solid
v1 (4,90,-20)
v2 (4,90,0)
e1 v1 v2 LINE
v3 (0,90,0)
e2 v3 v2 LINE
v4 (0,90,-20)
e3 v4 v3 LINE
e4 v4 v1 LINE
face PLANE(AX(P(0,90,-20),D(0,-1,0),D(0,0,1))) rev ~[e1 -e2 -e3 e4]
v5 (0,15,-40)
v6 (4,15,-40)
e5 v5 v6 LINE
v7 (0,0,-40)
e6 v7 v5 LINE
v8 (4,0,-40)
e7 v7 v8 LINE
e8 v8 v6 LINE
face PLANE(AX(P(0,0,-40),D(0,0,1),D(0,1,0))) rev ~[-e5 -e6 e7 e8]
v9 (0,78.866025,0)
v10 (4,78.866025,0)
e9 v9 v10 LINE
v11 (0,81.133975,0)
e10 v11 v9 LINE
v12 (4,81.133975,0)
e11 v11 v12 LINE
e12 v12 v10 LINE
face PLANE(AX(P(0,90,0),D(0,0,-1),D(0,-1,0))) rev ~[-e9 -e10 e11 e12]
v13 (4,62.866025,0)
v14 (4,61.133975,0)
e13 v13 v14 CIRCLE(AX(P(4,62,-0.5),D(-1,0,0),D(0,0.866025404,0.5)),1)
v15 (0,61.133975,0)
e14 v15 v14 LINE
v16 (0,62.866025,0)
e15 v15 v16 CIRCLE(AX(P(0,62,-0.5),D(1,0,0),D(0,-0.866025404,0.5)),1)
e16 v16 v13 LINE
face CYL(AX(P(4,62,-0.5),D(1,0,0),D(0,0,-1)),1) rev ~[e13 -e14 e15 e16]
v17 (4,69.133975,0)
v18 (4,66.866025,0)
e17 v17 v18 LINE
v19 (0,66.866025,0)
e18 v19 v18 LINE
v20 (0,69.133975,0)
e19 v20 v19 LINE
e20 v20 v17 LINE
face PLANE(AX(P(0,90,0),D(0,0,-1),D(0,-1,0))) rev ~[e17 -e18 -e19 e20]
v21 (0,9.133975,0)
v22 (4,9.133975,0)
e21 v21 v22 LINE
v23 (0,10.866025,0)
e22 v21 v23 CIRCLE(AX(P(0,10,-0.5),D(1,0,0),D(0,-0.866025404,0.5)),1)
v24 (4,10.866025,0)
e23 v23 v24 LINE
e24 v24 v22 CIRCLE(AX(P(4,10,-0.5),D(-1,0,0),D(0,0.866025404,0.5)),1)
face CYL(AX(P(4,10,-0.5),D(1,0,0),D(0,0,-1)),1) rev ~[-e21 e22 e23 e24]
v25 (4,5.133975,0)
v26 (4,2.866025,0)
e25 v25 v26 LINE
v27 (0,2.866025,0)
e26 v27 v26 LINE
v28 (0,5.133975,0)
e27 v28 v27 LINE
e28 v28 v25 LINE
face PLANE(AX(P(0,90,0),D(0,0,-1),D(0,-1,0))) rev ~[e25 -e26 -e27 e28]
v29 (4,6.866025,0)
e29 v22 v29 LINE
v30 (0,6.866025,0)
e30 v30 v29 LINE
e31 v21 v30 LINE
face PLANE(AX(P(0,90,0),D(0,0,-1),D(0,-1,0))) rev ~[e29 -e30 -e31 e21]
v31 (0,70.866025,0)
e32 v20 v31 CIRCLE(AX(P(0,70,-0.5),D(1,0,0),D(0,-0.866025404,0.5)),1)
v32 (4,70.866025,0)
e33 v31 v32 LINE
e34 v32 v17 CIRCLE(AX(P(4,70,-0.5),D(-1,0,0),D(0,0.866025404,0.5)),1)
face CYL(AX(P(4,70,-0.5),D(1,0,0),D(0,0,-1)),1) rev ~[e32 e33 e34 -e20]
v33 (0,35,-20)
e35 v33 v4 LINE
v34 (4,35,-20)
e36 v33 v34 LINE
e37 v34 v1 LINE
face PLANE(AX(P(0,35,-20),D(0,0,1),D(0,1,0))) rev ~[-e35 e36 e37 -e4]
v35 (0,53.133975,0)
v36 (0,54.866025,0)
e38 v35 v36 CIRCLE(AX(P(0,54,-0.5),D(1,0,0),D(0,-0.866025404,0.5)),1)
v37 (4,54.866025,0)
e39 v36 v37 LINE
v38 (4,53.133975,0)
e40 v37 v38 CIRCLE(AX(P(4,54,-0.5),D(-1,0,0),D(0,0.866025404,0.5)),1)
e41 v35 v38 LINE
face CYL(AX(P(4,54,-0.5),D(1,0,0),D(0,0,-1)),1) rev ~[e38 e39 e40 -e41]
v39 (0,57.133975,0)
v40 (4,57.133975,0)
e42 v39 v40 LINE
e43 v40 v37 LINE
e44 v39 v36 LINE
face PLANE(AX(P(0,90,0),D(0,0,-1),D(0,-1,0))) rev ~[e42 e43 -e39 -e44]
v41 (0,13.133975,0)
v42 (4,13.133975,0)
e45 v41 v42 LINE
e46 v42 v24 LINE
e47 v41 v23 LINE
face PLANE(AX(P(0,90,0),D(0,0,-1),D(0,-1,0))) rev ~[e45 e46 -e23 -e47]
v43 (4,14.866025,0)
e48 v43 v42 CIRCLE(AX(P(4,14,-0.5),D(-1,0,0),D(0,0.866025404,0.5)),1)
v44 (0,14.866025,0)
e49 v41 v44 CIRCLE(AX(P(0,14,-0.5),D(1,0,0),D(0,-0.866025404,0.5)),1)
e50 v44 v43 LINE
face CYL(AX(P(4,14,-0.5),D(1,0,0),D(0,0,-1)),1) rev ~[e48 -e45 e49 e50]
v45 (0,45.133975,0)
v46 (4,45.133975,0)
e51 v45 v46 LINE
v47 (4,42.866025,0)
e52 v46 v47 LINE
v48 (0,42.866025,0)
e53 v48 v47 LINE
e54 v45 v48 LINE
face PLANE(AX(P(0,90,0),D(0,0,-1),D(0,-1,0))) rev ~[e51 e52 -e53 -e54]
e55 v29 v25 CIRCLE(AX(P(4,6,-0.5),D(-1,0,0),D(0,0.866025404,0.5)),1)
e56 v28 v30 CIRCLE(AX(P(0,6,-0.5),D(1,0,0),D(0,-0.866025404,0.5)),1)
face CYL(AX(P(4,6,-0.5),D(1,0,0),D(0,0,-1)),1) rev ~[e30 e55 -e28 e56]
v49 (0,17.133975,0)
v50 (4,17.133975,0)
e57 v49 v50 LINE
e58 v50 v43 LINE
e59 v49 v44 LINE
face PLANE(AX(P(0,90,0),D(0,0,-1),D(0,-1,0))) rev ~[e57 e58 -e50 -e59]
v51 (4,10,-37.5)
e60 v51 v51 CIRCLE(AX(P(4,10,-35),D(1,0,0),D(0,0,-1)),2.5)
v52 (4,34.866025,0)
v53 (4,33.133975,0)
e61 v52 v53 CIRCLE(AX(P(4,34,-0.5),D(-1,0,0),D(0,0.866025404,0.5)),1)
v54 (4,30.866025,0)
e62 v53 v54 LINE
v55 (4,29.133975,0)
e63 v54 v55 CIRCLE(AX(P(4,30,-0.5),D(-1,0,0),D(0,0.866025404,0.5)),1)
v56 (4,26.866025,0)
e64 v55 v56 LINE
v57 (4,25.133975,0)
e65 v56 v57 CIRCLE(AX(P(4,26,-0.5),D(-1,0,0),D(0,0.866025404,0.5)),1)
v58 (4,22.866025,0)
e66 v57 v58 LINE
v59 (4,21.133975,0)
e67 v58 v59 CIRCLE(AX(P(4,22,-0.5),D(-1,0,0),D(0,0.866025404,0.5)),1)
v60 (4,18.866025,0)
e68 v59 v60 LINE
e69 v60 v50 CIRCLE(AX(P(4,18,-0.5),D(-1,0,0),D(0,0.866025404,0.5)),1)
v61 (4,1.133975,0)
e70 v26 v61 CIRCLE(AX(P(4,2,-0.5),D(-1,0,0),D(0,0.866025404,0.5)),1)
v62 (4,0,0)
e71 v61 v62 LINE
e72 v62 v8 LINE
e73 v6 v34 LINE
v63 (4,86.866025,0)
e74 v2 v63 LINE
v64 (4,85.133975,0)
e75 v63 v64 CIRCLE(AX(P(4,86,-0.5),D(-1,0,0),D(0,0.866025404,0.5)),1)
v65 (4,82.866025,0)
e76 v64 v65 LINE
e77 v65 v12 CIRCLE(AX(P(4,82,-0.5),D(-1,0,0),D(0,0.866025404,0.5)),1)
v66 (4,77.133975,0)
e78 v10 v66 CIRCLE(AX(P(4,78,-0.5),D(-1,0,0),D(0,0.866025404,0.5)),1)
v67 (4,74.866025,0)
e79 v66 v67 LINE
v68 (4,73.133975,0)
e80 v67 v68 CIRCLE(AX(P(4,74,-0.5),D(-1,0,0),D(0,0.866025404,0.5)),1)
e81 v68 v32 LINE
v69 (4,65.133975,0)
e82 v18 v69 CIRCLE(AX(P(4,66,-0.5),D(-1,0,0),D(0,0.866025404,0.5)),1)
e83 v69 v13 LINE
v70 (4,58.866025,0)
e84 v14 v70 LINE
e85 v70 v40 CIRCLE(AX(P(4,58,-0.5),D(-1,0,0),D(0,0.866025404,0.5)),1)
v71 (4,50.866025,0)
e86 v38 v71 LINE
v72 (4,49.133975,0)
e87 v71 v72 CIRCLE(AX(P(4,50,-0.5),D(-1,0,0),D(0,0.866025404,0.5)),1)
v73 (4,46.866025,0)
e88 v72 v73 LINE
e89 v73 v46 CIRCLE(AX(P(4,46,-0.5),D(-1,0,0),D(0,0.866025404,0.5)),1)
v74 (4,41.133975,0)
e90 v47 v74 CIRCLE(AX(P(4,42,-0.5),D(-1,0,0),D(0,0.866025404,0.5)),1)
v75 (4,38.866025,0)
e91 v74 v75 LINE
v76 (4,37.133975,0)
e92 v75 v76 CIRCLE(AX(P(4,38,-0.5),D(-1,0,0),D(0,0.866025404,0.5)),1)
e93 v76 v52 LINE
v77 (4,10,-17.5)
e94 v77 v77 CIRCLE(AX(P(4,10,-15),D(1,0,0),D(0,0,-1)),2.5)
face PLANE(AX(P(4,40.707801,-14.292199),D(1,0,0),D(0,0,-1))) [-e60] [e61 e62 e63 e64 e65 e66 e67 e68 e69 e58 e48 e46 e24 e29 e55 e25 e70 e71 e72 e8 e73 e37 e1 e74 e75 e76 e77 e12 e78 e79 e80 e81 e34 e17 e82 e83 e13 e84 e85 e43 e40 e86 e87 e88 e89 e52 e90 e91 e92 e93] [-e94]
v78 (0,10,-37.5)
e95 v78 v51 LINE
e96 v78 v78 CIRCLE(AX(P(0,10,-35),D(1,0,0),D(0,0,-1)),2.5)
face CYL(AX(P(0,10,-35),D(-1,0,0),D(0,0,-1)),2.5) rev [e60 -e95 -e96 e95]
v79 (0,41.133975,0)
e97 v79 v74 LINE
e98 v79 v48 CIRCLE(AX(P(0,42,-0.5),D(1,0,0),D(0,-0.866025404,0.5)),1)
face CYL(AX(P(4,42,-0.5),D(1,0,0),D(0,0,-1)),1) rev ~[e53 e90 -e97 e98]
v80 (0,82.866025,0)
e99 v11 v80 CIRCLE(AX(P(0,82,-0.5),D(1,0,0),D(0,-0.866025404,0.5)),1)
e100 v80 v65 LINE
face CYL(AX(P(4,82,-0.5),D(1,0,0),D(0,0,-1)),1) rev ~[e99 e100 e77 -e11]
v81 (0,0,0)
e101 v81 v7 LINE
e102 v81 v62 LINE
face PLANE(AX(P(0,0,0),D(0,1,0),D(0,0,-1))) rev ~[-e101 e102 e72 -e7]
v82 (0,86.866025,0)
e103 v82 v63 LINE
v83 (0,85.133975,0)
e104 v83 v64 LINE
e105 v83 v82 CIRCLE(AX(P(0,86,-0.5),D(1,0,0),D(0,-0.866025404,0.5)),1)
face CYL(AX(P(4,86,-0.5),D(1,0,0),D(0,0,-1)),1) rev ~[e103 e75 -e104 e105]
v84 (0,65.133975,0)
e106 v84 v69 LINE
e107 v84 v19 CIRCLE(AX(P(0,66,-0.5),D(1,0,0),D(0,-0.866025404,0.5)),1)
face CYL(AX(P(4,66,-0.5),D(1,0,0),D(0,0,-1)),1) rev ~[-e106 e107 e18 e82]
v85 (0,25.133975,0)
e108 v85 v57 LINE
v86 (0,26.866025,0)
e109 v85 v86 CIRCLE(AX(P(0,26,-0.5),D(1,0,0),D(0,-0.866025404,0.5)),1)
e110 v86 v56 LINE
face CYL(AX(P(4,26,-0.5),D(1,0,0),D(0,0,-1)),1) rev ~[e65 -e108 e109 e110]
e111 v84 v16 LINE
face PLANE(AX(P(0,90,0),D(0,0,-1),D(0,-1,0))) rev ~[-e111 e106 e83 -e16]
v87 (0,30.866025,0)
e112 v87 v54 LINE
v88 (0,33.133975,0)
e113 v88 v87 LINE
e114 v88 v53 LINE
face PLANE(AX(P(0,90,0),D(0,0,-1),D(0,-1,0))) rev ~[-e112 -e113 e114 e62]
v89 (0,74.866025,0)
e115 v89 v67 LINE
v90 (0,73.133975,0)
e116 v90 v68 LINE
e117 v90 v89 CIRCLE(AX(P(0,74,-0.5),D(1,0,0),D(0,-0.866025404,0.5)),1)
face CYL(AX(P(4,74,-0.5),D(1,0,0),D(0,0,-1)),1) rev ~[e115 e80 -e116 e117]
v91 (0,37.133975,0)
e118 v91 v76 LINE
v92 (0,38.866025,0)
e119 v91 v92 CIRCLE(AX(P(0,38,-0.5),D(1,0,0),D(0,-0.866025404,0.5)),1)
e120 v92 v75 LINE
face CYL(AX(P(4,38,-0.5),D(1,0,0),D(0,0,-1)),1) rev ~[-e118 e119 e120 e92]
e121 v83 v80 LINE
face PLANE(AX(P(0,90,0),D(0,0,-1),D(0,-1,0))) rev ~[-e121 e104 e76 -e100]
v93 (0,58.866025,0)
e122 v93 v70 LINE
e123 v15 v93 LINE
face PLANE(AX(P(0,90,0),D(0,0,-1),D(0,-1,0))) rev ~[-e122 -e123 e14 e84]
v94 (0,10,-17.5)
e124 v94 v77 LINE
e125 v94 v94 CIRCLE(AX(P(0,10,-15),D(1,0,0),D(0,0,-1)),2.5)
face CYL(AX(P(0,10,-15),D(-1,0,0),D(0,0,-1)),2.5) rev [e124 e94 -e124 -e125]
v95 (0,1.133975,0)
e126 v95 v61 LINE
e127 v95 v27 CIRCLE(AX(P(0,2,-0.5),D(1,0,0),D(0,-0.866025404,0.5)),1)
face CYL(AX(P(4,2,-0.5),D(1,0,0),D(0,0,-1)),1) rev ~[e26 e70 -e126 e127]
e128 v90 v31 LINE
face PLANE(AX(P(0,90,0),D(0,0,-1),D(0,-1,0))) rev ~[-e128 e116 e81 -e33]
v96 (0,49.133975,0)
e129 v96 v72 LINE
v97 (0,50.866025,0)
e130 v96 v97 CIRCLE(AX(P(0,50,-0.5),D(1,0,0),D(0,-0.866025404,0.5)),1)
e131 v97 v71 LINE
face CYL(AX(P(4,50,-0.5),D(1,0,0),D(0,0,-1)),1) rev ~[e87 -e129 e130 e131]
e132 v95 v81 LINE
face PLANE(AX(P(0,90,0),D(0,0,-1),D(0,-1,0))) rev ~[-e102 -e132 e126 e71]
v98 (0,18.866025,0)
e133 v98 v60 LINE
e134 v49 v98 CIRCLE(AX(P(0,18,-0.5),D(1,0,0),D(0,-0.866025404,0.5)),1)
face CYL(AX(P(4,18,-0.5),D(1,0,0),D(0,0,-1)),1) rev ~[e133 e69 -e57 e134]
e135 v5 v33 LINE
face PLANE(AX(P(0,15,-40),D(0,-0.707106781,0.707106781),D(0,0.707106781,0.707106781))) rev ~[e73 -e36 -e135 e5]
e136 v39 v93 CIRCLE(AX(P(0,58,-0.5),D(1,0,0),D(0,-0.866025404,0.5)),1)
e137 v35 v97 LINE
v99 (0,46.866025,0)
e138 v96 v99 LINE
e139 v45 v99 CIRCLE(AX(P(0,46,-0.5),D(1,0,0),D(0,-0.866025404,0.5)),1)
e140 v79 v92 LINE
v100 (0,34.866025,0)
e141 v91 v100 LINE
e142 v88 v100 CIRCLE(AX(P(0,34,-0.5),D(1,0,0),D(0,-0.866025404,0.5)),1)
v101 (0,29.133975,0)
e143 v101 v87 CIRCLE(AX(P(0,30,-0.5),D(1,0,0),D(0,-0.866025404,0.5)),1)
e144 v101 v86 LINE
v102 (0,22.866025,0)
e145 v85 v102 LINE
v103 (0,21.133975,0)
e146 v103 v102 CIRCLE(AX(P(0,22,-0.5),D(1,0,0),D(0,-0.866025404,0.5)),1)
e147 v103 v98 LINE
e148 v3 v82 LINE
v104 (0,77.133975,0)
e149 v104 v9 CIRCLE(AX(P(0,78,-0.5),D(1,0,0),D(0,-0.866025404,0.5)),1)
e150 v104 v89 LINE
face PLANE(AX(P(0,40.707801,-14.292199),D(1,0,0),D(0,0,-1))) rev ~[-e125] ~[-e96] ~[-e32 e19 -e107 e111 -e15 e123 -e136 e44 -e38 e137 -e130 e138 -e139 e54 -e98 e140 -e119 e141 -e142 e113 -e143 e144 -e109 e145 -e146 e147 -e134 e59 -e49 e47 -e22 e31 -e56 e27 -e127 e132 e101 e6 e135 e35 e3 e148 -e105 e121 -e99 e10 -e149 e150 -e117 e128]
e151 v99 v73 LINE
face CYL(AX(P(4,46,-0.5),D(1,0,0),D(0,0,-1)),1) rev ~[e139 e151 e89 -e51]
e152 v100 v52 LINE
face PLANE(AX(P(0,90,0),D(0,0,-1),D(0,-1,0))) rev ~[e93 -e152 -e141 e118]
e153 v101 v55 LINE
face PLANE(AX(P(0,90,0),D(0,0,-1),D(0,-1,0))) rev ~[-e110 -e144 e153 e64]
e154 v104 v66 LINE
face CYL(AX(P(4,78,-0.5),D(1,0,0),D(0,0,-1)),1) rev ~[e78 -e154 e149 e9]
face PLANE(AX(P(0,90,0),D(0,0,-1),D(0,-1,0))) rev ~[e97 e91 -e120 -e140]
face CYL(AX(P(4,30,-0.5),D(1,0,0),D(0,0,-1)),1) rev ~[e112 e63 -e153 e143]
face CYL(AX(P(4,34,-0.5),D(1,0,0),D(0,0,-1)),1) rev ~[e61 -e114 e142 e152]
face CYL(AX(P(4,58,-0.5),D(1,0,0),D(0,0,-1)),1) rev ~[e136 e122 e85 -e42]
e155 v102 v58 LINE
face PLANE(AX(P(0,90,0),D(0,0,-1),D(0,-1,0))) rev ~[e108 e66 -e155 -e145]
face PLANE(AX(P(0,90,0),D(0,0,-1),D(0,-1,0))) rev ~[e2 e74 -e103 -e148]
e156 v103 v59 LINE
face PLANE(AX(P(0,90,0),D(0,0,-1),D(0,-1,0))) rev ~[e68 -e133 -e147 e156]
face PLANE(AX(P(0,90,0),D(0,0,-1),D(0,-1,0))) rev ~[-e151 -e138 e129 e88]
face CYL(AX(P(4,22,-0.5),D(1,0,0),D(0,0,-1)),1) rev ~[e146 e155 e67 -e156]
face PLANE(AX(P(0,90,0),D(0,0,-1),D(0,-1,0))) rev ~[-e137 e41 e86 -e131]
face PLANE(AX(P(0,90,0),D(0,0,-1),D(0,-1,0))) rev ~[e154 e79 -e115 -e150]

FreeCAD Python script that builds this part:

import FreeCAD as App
import Part
import Sketcher
from FreeCAD import Vector
Q = App.Units.Quantity

doc = App.newDocument("Part")
body = doc.addObject("PartDesign::Body", "Body")

sketch1 = body.newObject("Sketcher::SketchObject", "Sketch")
sketch1.AttachmentSupport = (doc.getObject("YZ_Plane"), [""])
sketch1.MapMode = "FlatFace"
sketch1.addGeometry(Part.LineSegment(Vector(15, -40, 0), Vector(35, -20, 0)), False)
sketch1.addGeometry(Part.LineSegment(Vector(35, -20, 0), Vector(90, -20, 0)), False)
sketch1.addGeometry(Part.LineSegment(Vector(90, -20, 0), Vector(90, 0, 0)), False)
sketch1.addGeometry(Part.LineSegment(Vector(90, 0, 0), Vector(0, 0, 0)), False)
sketch1.addGeometry(Part.LineSegment(Vector(0, 0, 0), Vector(0, -40, 0)), False)
sketch1.addGeometry(Part.LineSegment(Vector(0, -40, 0), Vector(15, -40, 0)), False)
sketch1.addGeometry(Part.Circle(Vector(10, -15, 0), Vector(0, 0, 1), 2.5), False)
sketch1.addGeometry(Part.Circle(Vector(10, -35, 0), Vector(0, 0, 1), 2.5), False)
sketch1.addConstraint(Sketcher.Constraint("Coincident", 0, 2, 1, 1))
sketch1.addConstraint(Sketcher.Constraint("Coincident", 1, 2, 2, 1))
sketch1.addConstraint(Sketcher.Constraint("Coincident", 2, 2, 3, 1))
sketch1.addConstraint(Sketcher.Constraint("Coincident", 3, 2, 4, 1))
sketch1.addConstraint(Sketcher.Constraint("Coincident", 4, 2, 5, 1))
sketch1.addConstraint(Sketcher.Constraint("Coincident", 5, 2, 0, 1))
sketch1.addConstraint(Sketcher.Constraint("Horizontal", 1))
sketch1.addConstraint(Sketcher.Constraint("Vertical", 2))
sketch1.addConstraint(Sketcher.Constraint("Horizontal", 3))
sketch1.addConstraint(Sketcher.Constraint("Vertical", 4))
sketch1.addConstraint(Sketcher.Constraint("Horizontal", 5))
sketch1.addConstraint(Sketcher.Constraint("Coincident", 3, 2, -1, 1))
sketch1.addConstraint(Sketcher.Constraint("Equal", 6, 7))
sketch1.addConstraint(Sketcher.Constraint("Vertical", 6, 3, 7, 3))
sketch1.addConstraint(Sketcher.Constraint("Diameter", 6, Q("5 mm")))
sketch1.addConstraint(Sketcher.Constraint("DistanceX", 1, 1, 1, 2, Q("55 mm")))
sketch1.addConstraint(Sketcher.Constraint("DistanceX", 3, 2, 3, 1, Q("90 mm")))
sketch1.addConstraint(Sketcher.Constraint("DistanceX", 5, 1, 5, 2, Q("15 mm")))
sketch1.addConstraint(Sketcher.Constraint("DistanceY", 2, 1, 2, 2, Q("20 mm")))
sketch1.addConstraint(Sketcher.Constraint("DistanceY", 4, 2, 4, 1, Q("40 mm")))
sketch1.addConstraint(Sketcher.Constraint("DistanceX", -1, 1, 6, 3, Q("10 mm")))
sketch1.addConstraint(Sketcher.Constraint("DistanceY", 6, 3, -1, 1, Q("15 mm")))
sketch1.addConstraint(Sketcher.Constraint("DistanceY", 7, 3, -1, 1, Q("35 mm")))
pad1 = body.newObject("PartDesign::Pad", "Pad")
pad1.Profile = sketch1
pad1.Length = 4

sketch2 = body.newObject("Sketcher::SketchObject", "Sketch001")
sketch2.AttachmentSupport = (doc.getObject("YZ_Plane"), [""])
sketch2.MapMode = "FlatFace"
sketch2.AttachmentOffset = App.Placement(Vector(0, 0, 4), App.Rotation())
sketch2.addGeometry(Part.Circle(Vector(2, -0.5, 0), Vector(0, 0, 1), 1), False)
sketch2.addGeometry(Part.Circle(Vector(6, -0.5, 0), Vector(0, 0, 1), 1), False)
sketch2.addGeometry(Part.Circle(Vector(10, -0.5, 0), Vector(0, 0, 1), 1), False)
sketch2.addGeometry(Part.Circle(Vector(14, -0.5, 0), Vector(0, 0, 1), 1), False)
sketch2.addGeometry(Part.Circle(Vector(18, -0.5, 0), Vector(0, 0, 1), 1), False)
sketch2.addGeometry(Part.Circle(Vector(22, -0.5, 0), Vector(0, 0, 1), 1), False)
sketch2.addGeometry(Part.Circle(Vector(26, -0.5, 0), Vector(0, 0, 1), 1), False)
sketch2.addGeometry(Part.Circle(Vector(30, -0.5, 0), Vector(0, 0, 1), 1), False)
sketch2.addGeometry(Part.Circle(Vector(34, -0.5, 0), Vector(0, 0, 1), 1), False)
sketch2.addGeometry(Part.Circle(Vector(38, -0.5, 0), Vector(0, 0, 1), 1), False)
sketch2.addGeometry(Part.Circle(Vector(42, -0.5, 0), Vector(0, 0, 1), 1), False)
sketch2.addGeometry(Part.Circle(Vector(46, -0.5, 0), Vector(0, 0, 1), 1), False)
sketch2.addGeometry(Part.Circle(Vector(50, -0.5, 0), Vector(0, 0, 1), 1), False)
sketch2.addGeometry(Part.Circle(Vector(54, -0.5, 0), Vector(0, 0, 1), 1), False)
sketch2.addGeometry(Part.Circle(Vector(58, -0.5, 0), Vector(0, 0, 1), 1), False)
sketch2.addGeometry(Part.Circle(Vector(62, -0.5, 0), Vector(0, 0, 1), 1), False)
sketch2.addGeometry(Part.Circle(Vector(66, -0.5, 0), Vector(0, 0, 1), 1), False)
sketch2.addGeometry(Part.Circle(Vector(70, -0.5, 0), Vector(0, 0, 1), 1), False)
sketch2.addGeometry(Part.Circle(Vector(74, -0.5, 0), Vector(0, 0, 1), 1), False)
sketch2.addGeometry(Part.Circle(Vector(78, -0.5, 0), Vector(0, 0, 1), 1), False)
sketch2.addGeometry(Part.Circle(Vector(82, -0.5, 0), Vector(0, 0, 1), 1), False)
sketch2.addGeometry(Part.Circle(Vector(86, -0.5, 0), Vector(0, 0, 1), 1), False)
sketch2.addConstraint(Sketcher.Constraint("Equal", 0, 1))
sketch2.addConstraint(Sketcher.Constraint("Equal", 1, 2))
sketch2.addConstraint(Sketcher.Constraint("Equal", 2, 3))
sketch2.addConstraint(Sketcher.Constraint("Equal", 3, 4))
sketch2.addConstraint(Sketcher.Constraint("Equal", 4, 5))
sketch2.addConstraint(Sketcher.Constraint("Equal", 5, 6))
sketch2.addConstraint(Sketcher.Constraint("Equal", 6, 7))
sketch2.addConstraint(Sketcher.Constraint("Equal", 7, 8))
sketch2.addConstraint(Sketcher.Constraint("Equal", 8, 9))
sketch2.addConstraint(Sketcher.Constraint("Equal", 9, 10))
sketch2.addConstraint(Sketcher.Constraint("Equal", 10, 11))
sketch2.addConstraint(Sketcher.Constraint("Equal", 11, 12))
sketch2.addConstraint(Sketcher.Constraint("Equal", 12, 13))
sketch2.addConstraint(Sketcher.Constraint("Equal", 13, 14))
sketch2.addConstraint(Sketcher.Constraint("Equal", 14, 15))
sketch2.addConstraint(Sketcher.Constraint("Equal", 15, 16))
sketch2.addConstraint(Sketcher.Constraint("Equal", 16, 17))
sketch2.addConstraint(Sketcher.Constraint("Equal", 17, 18))
sketch2.addConstraint(Sketcher.Constraint("Equal", 18, 19))
sketch2.addConstraint(Sketcher.Constraint("Equal", 19, 20))
sketch2.addConstraint(Sketcher.Constraint("Equal", 20, 21))
sketch2.addConstraint(Sketcher.Constraint("Horizontal", 0, 3, 1, 3))
sketch2.addConstraint(Sketcher.Constraint("Horizontal", 1, 3, 2, 3))
sketch2.addConstraint(Sketcher.Constraint("Horizontal", 2, 3, 3, 3))
sketch2.addConstraint(Sketcher.Constraint("Horizontal", 3, 3, 4, 3))
sketch2.addConstraint(Sketcher.Constraint("Horizontal", 4, 3, 5, 3))
sketch2.addConstraint(Sketcher.Constraint("Horizontal", 5, 3, 6, 3))
sketch2.addConstraint(Sketcher.Constraint("Horizontal", 6, 3, 7, 3))
sketch2.addConstraint(Sketcher.Constraint("Horizontal", 7, 3, 8, 3))
sketch2.addConstraint(Sketcher.Constraint("Horizontal", 8, 3, 9, 3))
sketch2.addConstraint(Sketcher.Constraint("Horizontal", 9, 3, 10, 3))
sketch2.addConstraint(Sketcher.Constraint("Horizontal", 10, 3, 11, 3))
sketch2.addConstraint(Sketcher.Constraint("Horizontal", 11, 3, 12, 3))
sketch2.addConstraint(Sketcher.Constraint("Horizontal", 12, 3, 13, 3))
sketch2.addConstraint(Sketcher.Constraint("Horizontal", 13, 3, 14, 3))
sketch2.addConstraint(Sketcher.Constraint("Horizontal", 14, 3, 15, 3))
sketch2.addConstraint(Sketcher.Constraint("Horizontal", 15, 3, 16, 3))
sketch2.addConstraint(Sketcher.Constraint("Horizontal", 16, 3, 17, 3))
sketch2.addConstraint(Sketcher.Constraint("Horizontal", 17, 3, 18, 3))
sketch2.addConstraint(Sketcher.Constraint("Horizontal", 18, 3, 19, 3))
sketch2.addConstraint(Sketcher.Constraint("Horizontal", 19, 3, 20, 3))
sketch2.addConstraint(Sketcher.Constraint("Horizontal", 20, 3, 21, 3))
sketch2.addConstraint(Sketcher.Constraint("Diameter", 0, Q("2 mm")))
sketch2.addConstraint(Sketcher.Constraint("DistanceX", -1, 1, 0, 3, Q("2 mm")))
sketch2.addConstraint(Sketcher.Constraint("DistanceX", -1, 1, 1, 3, Q("6 mm")))
sketch2.addConstraint(Sketcher.Constraint("DistanceX", -1, 1, 2, 3, Q("10 mm")))
sketch2.addConstraint(Sketcher.Constraint("DistanceX", -1, 1, 3, 3, Q("14 mm")))
sketch2.addConstraint(Sketcher.Constraint("DistanceX", -1, 1, 4, 3, Q("18 mm")))
sketch2.addConstraint(Sketcher.Constraint("DistanceX", -1, 1, 5, 3, Q("22 mm")))
sketch2.addConstraint(Sketcher.Constraint("DistanceX", -1, 1, 6, 3, Q("26 mm")))
sketch2.addConstraint(Sketcher.Constraint("DistanceX", -1, 1, 7, 3, Q("30 mm")))
sketch2.addConstraint(Sketcher.Constraint("DistanceX", -1, 1, 8, 3, Q("34 mm")))
sketch2.addConstraint(Sketcher.Constraint("DistanceX", -1, 1, 9, 3, Q("38 mm")))
sketch2.addConstraint(Sketcher.Constraint("DistanceX", -1, 1, 10, 3, Q("42 mm")))
sketch2.addConstraint(Sketcher.Constraint("DistanceX", -1, 1, 11, 3, Q("46 mm")))
sketch2.addConstraint(Sketcher.Constraint("DistanceX", -1, 1, 12, 3, Q("50 mm")))
sketch2.addConstraint(Sketcher.Constraint("DistanceX", -1, 1, 13, 3, Q("54 mm")))
sketch2.addConstraint(Sketcher.Constraint("DistanceX", -1, 1, 14, 3, Q("58 mm")))
sketch2.addConstraint(Sketcher.Constraint("DistanceX", -1, 1, 15, 3, Q("62 mm")))
sketch2.addConstraint(Sketcher.Constraint("DistanceX", -1, 1, 16, 3, Q("66 mm")))
sketch2.addConstraint(Sketcher.Constraint("DistanceX", -1, 1, 17, 3, Q("70 mm")))
sketch2.addConstraint(Sketcher.Constraint("DistanceX", -1, 1, 18, 3, Q("74 mm")))
sketch2.addConstraint(Sketcher.Constraint("DistanceX", -1, 1, 19, 3, Q("78 mm")))
sketch2.addConstraint(Sketcher.Constraint("DistanceX", -1, 1, 20, 3, Q("82 mm")))
sketch2.addConstraint(Sketcher.Constraint("DistanceX", -1, 1, 21, 3, Q("86 mm")))
sketch2.addConstraint(Sketcher.Constraint("DistanceY", 0, 3, -1, 1, Q("0.5 mm")))
pocket1 = body.newObject("PartDesign::Pocket", "Pocket")
pocket1.Profile = sketch2
pocket1.Length = 10

doc.recompute()
